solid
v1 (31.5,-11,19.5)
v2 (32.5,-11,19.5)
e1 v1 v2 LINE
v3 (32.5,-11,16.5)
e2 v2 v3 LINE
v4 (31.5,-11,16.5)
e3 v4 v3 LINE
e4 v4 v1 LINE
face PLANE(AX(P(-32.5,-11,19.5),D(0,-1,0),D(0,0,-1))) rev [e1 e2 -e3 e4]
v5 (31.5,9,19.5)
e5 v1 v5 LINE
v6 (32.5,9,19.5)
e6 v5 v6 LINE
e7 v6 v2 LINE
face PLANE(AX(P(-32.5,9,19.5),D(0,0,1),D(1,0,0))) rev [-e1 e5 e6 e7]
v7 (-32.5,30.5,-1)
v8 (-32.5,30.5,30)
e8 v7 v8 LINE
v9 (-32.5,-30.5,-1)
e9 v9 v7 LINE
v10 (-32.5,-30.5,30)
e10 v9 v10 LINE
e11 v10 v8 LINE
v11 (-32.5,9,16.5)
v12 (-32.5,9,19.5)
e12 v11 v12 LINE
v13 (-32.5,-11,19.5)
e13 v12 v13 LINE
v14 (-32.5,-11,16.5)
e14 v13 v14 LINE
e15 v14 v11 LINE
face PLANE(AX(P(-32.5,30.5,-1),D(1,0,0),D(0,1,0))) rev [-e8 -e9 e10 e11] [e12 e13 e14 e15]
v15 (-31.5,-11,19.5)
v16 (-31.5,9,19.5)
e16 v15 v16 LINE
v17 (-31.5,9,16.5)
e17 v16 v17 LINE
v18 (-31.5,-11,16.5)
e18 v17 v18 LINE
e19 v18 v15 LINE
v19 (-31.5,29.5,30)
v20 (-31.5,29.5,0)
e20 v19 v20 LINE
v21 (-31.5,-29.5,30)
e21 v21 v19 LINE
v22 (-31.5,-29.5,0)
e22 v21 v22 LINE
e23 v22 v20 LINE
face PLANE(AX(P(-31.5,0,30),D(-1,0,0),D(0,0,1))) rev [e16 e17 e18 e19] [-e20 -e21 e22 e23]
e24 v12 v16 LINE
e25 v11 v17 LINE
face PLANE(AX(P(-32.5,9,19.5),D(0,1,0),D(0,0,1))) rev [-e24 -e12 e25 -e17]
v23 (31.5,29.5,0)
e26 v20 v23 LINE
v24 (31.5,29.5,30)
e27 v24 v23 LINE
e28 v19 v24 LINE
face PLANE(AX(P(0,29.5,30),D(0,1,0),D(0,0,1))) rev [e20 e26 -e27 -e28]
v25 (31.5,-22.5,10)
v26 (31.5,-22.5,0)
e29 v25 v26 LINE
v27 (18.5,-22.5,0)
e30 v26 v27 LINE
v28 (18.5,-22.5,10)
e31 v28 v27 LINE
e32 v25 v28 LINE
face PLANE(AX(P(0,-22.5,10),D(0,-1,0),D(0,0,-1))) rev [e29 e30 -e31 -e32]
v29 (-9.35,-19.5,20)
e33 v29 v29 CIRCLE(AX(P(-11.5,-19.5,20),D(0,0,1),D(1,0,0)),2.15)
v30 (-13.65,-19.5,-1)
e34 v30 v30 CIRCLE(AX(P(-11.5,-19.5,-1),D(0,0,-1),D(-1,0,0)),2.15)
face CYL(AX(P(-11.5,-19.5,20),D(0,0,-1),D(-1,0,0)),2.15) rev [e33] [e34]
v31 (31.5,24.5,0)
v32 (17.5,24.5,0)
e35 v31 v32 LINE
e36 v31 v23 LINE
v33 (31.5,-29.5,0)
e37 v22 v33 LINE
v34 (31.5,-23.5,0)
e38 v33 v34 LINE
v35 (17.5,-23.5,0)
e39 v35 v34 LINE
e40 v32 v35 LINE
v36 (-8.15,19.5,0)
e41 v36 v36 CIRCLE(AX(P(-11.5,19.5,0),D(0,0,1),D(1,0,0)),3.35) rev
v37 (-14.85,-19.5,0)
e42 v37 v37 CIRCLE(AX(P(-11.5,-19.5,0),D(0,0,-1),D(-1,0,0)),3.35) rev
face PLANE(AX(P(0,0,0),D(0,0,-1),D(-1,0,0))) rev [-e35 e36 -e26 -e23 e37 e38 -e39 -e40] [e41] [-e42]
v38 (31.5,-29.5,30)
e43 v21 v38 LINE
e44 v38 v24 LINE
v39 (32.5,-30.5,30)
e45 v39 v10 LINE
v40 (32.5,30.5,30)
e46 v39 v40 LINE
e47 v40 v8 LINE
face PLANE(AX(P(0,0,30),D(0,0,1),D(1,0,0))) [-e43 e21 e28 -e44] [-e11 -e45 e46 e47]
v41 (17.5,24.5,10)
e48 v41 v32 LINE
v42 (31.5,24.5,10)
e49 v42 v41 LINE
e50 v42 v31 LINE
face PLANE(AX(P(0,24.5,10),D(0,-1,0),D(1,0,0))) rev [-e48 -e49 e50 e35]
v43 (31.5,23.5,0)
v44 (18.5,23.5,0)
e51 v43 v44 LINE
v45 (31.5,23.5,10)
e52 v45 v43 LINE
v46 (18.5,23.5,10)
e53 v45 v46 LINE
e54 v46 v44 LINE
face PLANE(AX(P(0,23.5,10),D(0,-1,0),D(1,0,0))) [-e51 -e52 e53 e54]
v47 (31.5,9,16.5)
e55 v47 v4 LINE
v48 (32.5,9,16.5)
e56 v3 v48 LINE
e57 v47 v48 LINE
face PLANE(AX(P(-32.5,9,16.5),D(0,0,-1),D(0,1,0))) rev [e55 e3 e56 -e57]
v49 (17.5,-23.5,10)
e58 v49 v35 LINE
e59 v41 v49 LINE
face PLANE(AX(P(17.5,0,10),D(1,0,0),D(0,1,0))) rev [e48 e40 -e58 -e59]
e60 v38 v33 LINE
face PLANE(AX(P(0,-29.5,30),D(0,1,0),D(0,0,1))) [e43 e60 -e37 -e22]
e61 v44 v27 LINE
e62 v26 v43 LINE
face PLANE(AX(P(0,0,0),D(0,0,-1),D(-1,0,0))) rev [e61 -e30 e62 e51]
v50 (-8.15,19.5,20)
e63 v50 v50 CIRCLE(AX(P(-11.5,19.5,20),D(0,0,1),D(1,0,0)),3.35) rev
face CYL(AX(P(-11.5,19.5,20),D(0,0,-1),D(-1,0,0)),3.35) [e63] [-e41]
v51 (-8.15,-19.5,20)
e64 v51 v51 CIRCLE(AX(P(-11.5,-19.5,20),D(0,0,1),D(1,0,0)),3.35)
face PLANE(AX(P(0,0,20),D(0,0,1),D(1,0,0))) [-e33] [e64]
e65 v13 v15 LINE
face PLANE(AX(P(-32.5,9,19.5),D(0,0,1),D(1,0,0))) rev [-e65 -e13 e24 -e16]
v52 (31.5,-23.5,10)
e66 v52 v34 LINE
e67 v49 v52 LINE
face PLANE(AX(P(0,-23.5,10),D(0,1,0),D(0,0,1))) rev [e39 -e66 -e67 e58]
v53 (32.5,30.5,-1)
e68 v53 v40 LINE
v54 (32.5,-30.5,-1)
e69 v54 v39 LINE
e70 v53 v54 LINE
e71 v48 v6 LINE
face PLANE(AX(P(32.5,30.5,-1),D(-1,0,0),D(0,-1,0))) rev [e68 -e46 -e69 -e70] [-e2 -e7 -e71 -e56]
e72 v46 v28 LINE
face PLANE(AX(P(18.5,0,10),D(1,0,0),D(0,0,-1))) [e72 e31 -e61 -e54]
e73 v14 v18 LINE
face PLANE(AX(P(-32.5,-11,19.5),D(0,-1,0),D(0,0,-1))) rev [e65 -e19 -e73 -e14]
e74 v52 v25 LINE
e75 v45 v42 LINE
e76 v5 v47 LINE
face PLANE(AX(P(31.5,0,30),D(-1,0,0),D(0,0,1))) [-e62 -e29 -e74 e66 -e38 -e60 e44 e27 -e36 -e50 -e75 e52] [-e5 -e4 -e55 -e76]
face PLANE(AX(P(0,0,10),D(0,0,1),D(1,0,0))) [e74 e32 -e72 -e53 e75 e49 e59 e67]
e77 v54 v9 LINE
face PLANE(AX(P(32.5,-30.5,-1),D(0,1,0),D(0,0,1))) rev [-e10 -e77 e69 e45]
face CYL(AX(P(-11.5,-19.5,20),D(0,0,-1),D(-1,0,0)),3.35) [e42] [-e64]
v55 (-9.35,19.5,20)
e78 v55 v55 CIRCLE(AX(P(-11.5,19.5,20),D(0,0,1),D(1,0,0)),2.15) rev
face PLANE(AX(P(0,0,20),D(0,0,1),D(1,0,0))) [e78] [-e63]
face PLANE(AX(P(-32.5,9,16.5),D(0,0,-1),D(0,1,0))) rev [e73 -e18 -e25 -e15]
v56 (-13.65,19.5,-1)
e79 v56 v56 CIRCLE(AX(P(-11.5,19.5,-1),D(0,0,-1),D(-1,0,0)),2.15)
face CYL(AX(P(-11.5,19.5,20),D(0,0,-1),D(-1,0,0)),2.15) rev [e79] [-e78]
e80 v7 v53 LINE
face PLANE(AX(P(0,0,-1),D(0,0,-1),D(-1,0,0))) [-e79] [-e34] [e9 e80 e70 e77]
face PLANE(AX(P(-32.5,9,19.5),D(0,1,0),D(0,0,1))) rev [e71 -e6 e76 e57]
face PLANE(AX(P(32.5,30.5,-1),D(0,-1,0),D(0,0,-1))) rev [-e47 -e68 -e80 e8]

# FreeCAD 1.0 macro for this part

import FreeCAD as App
import Part
import Sketcher

V = App.Vector
Q = App.Units.Quantity


def add_polygon(sketch, points):
    """Adds a closed chain of lines whose ends are joined by coincident constraints."""
    first, n = sketch.GeometryCount, len(points)
    for a, b in zip(points, points[1:] + points[:1]):
        sketch.addGeometry(Part.LineSegment(App.Vector(*a, 0), App.Vector(*b, 0)), False)
    for i in range(n):
        sketch.addConstraint(Sketcher.Constraint("Coincident", first + i, 2, first + (i + 1) % n, 1))

doc = App.newDocument("Part")
body = doc.addObject("PartDesign::Body", "Body")

# Sketch on XY plane
sketch1 = body.newObject("Sketcher::SketchObject", "Sketch")
sketch1.AttachmentSupport = (doc.getObject("XY_Plane"), [""])
sketch1.MapMode = "FlatFace"
add_polygon(sketch1, [(-32.5, 30.5), (-32.5, -30.5), (32.5, -30.5), (32.5, 30.5)])  # lines 0-3
add_polygon(sketch1, [(31.5, -29.5), (-31.5, -29.5), (-31.5, 29.5), (31.5, 29.5)])  # lines 4-7
sketch1.addConstraint([
    Sketcher.Constraint("Vertical", 0),
    Sketcher.Constraint("Horizontal", 1),
    Sketcher.Constraint("Vertical", 2),
    Sketcher.Constraint("Horizontal", 3),
    Sketcher.Constraint("Horizontal", 4),
    Sketcher.Constraint("Vertical", 5),
    Sketcher.Constraint("Horizontal", 6),
    Sketcher.Constraint("Vertical", 7),
    Sketcher.Constraint("Symmetric", 0, 2, 2, 2, -1, 1),
    Sketcher.Constraint("Symmetric", 4, 2, 6, 2, -1, 1),
    Sketcher.Constraint("DistanceX", 1, 1, 1, 2, Q("65 mm")),
    Sketcher.Constraint("DistanceX", 4, 2, 4, 1, Q("63 mm")),
    Sketcher.Constraint("DistanceY", 0, 2, 0, 1, Q("61 mm")),
    Sketcher.Constraint("DistanceY", 5, 1, 5, 2, Q("59 mm")),
])
pad1 = body.newObject("PartDesign::Pad", "Pad")
pad1.Profile = sketch1
pad1.Length = 30

# Sketch on XY plane
sketch2 = body.newObject("Sketcher::SketchObject", "Sketch001")
sketch2.AttachmentSupport = (doc.getObject("XY_Plane"), [""])
sketch2.MapMode = "FlatFace"
add_polygon(sketch2, [(17.5, -23.5), (31.5, -23.5), (31.5, -22.5), (18.5, -22.5), (18.5, 23.5), (31.5, 23.5), (31.5, 24.5), (17.5, 24.5)])  # lines 0-7
sketch2.addConstraint([
    Sketcher.Constraint("Horizontal", 0),
    Sketcher.Constraint("Vertical", 1),
    Sketcher.Constraint("Horizontal", 2),
    Sketcher.Constraint("Vertical", 3),
    Sketcher.Constraint("Horizontal", 4),
    Sketcher.Constraint("Vertical", 5),
    Sketcher.Constraint("Horizontal", 6),
    Sketcher.Constraint("Vertical", 7),
    Sketcher.Constraint("Symmetric", 0, 2, 4, 2, -1),
    Sketcher.Constraint("Equal", 1, 5),
    Sketcher.Constraint("DistanceX", 0, 1, 0, 2, Q("14 mm")),
    Sketcher.Constraint("DistanceX", 2, 2, 2, 1, Q("13 mm")),
    Sketcher.Constraint("DistanceY", 1, 1, 1, 2, Q("1 mm")),
    Sketcher.Constraint("DistanceY", 3, 1, 3, 2, Q("46 mm")),
    Sketcher.Constraint("DistanceX", -1, 1, 0, 2, Q("31.5 mm")),
])
pad2 = body.newObject("PartDesign::Pad", "Pad001")
pad2.Profile = sketch2
pad2.Length = 10
body2 = doc.addObject("PartDesign::Body", "Body001")

# Sketch on XY plane
sketch3 = body2.newObject("Sketcher::SketchObject", "Sketch002")
sketch3.AttachmentSupport = (doc.getObject("XY_Plane001"), [""])
sketch3.MapMode = "FlatFace"
sketch3.addGeometry([
    Part.Circle(V(-11.5, -19.5, 0), V(0, 0, 1), 3.35),
    Part.Circle(V(-11.5, -19.5, 0), V(0, 0, 1), 2.15),
], False)
sketch3.addConstraint([
    Sketcher.Constraint("Coincident", 1, 3, 0, 3),
    Sketcher.Constraint("Diameter", 0, Q("6.7 mm")),
    Sketcher.Constraint("Diameter", 1, Q("4.3 mm")),
    Sketcher.Constraint("DistanceX", 0, 3, -1, 1, Q("11.5 mm")),
    Sketcher.Constraint("DistanceY", 0, 3, -1, 1, Q("19.5 mm")),
])
pad3 = body2.newObject("PartDesign::Pad", "Pad002")
pad3.Profile = sketch3
pad3.Length = 20
body3 = doc.addObject("PartDesign::Body", "Body002")

# Sketch on XY plane
sketch4 = body3.newObject("Sketcher::SketchObject", "Sketch003")
sketch4.AttachmentSupport = (doc.getObject("XY_Plane002"), [""])
sketch4.MapMode = "FlatFace"
sketch4.addGeometry([
    Part.Circle(V(-11.5, 19.5, 0), V(0, 0, 1), 3.35),
    Part.Circle(V(-11.5, 19.5, 0), V(0, 0, 1), 2.15),
], False)
sketch4.addConstraint([
    Sketcher.Constraint("Coincident", 1, 3, 0, 3),
    Sketcher.Constraint("Diameter", 0, Q("6.7 mm")),
    Sketcher.Constraint("Diameter", 1, Q("4.3 mm")),
    Sketcher.Constraint("DistanceX", 0, 3, -1, 1, Q("11.5 mm")),
    Sketcher.Constraint("DistanceY", -1, 1, 0, 3, Q("19.5 mm")),
])
pad4 = body3.newObject("PartDesign::Pad", "Pad003")
pad4.Profile = sketch4
pad4.Length = 20
body.AllowCompound = True
doc.recompute()

boolean = body.newObject("PartDesign::Boolean", "Boolean")
boolean.Type = "Fuse"
boolean.addObjects([body2])
doc.recompute()

boolean2 = body.newObject("PartDesign::Boolean", "Boolean001")
boolean2.Type = "Fuse"
boolean2.addObjects([body3])

# Sketch on XY plane
sketch5 = body.newObject("Sketcher::SketchObject", "Sketch004")
sketch5.AttachmentSupport = (doc.getObject("XY_Plane"), [""])
sketch5.MapMode = "FlatFace"
add_polygon(sketch5, [(32.5, 30.5), (32.5, -30.5), (-32.5, -30.5), (-32.5, 30.5)])  # lines 0-3
sketch5.addConstraint([
    Sketcher.Constraint("Vertical", 0),
    Sketcher.Constraint("Horizontal", 1),
    Sketcher.Constraint("Vertical", 2),
    Sketcher.Constraint("Horizontal", 3),
    Sketcher.Constraint("Symmetric", 0, 2, 2, 2, -1, 1),
    Sketcher.Constraint("DistanceX", 1, 2, 1, 1, Q("65 mm")),
    Sketcher.Constraint("DistanceY", 0, 2, 0, 1, Q("61 mm")),
])
pad5 = body.newObject("PartDesign::Pad", "Pad004")
pad5.Profile = sketch5
pad5.Length = 1
pad5.Reversed = True

# Sketch on YZ plane
sketch6 = body.newObject("Sketcher::SketchObject", "Sketch005")
sketch6.AttachmentSupport = (doc.getObject("YZ_Plane"), [""])
sketch6.MapMode = "FlatFace"
add_polygon(sketch6, [(9, 19.5), (-11, 19.5), (-11, 16.5), (9, 16.5)])  # lines 0-3
sketch6.addConstraint([
    Sketcher.Constraint("Horizontal", 0),
    Sketcher.Constraint("Vertical", 1),
    Sketcher.Constraint("Horizontal", 2),
    Sketcher.Constraint("Vertical", 3),
    Sketcher.Constraint("DistanceX", 0, 2, 0, 1, Q("20 mm")),
    Sketcher.Constraint("DistanceY", 1, 2, 1, 1, Q("3 mm")),
    Sketcher.Constraint("DistanceX", 0, 2, -1, 1, Q("11 mm")),
    Sketcher.Constraint("DistanceY", -1, 1, 0, 2, Q("19.5 mm")),
])
pocket1 = body.newObject("PartDesign::Pocket", "Pocket")
pocket1.Profile = sketch6
pocket1.Type = "ThroughAll"
pocket1.Midplane = True

# Sketch on XY plane
sketch7 = body.newObject("Sketcher::SketchObject", "Sketch006")
sketch7.AttachmentSupport = (doc.getObject("XY_Plane"), [""])
sketch7.MapMode = "FlatFace"
sketch7.AttachmentOffset = App.Placement(V(0, 0, -20), App.Rotation())
sketch7.addGeometry([
    Part.Circle(V(-11.5, -19.5, 0), V(0, 0, 1), 2.15),
    Part.Circle(V(-11.5, 19.5, 0), V(0, 0, 1), 2.15),
], False)
sketch7.addConstraint([
    Sketcher.Constraint("Equal", 0, 1),
    Sketcher.Constraint("Symmetric", 0, 3, 1, 3, -1),
    Sketcher.Constraint("Diameter", 0, Q("4.3 mm")),
    Sketcher.Constraint("DistanceY", 0, 3, 1, 3, Q("39 mm")),
    Sketcher.Constraint("DistanceX", 0, 3, -1, 1, Q("11.5 mm")),
])
pocket2 = body.newObject("PartDesign::Pocket", "Pocket001")
pocket2.Profile = sketch7
pocket2.Length = 40
pocket2.Reversed = True

doc.recompute()
